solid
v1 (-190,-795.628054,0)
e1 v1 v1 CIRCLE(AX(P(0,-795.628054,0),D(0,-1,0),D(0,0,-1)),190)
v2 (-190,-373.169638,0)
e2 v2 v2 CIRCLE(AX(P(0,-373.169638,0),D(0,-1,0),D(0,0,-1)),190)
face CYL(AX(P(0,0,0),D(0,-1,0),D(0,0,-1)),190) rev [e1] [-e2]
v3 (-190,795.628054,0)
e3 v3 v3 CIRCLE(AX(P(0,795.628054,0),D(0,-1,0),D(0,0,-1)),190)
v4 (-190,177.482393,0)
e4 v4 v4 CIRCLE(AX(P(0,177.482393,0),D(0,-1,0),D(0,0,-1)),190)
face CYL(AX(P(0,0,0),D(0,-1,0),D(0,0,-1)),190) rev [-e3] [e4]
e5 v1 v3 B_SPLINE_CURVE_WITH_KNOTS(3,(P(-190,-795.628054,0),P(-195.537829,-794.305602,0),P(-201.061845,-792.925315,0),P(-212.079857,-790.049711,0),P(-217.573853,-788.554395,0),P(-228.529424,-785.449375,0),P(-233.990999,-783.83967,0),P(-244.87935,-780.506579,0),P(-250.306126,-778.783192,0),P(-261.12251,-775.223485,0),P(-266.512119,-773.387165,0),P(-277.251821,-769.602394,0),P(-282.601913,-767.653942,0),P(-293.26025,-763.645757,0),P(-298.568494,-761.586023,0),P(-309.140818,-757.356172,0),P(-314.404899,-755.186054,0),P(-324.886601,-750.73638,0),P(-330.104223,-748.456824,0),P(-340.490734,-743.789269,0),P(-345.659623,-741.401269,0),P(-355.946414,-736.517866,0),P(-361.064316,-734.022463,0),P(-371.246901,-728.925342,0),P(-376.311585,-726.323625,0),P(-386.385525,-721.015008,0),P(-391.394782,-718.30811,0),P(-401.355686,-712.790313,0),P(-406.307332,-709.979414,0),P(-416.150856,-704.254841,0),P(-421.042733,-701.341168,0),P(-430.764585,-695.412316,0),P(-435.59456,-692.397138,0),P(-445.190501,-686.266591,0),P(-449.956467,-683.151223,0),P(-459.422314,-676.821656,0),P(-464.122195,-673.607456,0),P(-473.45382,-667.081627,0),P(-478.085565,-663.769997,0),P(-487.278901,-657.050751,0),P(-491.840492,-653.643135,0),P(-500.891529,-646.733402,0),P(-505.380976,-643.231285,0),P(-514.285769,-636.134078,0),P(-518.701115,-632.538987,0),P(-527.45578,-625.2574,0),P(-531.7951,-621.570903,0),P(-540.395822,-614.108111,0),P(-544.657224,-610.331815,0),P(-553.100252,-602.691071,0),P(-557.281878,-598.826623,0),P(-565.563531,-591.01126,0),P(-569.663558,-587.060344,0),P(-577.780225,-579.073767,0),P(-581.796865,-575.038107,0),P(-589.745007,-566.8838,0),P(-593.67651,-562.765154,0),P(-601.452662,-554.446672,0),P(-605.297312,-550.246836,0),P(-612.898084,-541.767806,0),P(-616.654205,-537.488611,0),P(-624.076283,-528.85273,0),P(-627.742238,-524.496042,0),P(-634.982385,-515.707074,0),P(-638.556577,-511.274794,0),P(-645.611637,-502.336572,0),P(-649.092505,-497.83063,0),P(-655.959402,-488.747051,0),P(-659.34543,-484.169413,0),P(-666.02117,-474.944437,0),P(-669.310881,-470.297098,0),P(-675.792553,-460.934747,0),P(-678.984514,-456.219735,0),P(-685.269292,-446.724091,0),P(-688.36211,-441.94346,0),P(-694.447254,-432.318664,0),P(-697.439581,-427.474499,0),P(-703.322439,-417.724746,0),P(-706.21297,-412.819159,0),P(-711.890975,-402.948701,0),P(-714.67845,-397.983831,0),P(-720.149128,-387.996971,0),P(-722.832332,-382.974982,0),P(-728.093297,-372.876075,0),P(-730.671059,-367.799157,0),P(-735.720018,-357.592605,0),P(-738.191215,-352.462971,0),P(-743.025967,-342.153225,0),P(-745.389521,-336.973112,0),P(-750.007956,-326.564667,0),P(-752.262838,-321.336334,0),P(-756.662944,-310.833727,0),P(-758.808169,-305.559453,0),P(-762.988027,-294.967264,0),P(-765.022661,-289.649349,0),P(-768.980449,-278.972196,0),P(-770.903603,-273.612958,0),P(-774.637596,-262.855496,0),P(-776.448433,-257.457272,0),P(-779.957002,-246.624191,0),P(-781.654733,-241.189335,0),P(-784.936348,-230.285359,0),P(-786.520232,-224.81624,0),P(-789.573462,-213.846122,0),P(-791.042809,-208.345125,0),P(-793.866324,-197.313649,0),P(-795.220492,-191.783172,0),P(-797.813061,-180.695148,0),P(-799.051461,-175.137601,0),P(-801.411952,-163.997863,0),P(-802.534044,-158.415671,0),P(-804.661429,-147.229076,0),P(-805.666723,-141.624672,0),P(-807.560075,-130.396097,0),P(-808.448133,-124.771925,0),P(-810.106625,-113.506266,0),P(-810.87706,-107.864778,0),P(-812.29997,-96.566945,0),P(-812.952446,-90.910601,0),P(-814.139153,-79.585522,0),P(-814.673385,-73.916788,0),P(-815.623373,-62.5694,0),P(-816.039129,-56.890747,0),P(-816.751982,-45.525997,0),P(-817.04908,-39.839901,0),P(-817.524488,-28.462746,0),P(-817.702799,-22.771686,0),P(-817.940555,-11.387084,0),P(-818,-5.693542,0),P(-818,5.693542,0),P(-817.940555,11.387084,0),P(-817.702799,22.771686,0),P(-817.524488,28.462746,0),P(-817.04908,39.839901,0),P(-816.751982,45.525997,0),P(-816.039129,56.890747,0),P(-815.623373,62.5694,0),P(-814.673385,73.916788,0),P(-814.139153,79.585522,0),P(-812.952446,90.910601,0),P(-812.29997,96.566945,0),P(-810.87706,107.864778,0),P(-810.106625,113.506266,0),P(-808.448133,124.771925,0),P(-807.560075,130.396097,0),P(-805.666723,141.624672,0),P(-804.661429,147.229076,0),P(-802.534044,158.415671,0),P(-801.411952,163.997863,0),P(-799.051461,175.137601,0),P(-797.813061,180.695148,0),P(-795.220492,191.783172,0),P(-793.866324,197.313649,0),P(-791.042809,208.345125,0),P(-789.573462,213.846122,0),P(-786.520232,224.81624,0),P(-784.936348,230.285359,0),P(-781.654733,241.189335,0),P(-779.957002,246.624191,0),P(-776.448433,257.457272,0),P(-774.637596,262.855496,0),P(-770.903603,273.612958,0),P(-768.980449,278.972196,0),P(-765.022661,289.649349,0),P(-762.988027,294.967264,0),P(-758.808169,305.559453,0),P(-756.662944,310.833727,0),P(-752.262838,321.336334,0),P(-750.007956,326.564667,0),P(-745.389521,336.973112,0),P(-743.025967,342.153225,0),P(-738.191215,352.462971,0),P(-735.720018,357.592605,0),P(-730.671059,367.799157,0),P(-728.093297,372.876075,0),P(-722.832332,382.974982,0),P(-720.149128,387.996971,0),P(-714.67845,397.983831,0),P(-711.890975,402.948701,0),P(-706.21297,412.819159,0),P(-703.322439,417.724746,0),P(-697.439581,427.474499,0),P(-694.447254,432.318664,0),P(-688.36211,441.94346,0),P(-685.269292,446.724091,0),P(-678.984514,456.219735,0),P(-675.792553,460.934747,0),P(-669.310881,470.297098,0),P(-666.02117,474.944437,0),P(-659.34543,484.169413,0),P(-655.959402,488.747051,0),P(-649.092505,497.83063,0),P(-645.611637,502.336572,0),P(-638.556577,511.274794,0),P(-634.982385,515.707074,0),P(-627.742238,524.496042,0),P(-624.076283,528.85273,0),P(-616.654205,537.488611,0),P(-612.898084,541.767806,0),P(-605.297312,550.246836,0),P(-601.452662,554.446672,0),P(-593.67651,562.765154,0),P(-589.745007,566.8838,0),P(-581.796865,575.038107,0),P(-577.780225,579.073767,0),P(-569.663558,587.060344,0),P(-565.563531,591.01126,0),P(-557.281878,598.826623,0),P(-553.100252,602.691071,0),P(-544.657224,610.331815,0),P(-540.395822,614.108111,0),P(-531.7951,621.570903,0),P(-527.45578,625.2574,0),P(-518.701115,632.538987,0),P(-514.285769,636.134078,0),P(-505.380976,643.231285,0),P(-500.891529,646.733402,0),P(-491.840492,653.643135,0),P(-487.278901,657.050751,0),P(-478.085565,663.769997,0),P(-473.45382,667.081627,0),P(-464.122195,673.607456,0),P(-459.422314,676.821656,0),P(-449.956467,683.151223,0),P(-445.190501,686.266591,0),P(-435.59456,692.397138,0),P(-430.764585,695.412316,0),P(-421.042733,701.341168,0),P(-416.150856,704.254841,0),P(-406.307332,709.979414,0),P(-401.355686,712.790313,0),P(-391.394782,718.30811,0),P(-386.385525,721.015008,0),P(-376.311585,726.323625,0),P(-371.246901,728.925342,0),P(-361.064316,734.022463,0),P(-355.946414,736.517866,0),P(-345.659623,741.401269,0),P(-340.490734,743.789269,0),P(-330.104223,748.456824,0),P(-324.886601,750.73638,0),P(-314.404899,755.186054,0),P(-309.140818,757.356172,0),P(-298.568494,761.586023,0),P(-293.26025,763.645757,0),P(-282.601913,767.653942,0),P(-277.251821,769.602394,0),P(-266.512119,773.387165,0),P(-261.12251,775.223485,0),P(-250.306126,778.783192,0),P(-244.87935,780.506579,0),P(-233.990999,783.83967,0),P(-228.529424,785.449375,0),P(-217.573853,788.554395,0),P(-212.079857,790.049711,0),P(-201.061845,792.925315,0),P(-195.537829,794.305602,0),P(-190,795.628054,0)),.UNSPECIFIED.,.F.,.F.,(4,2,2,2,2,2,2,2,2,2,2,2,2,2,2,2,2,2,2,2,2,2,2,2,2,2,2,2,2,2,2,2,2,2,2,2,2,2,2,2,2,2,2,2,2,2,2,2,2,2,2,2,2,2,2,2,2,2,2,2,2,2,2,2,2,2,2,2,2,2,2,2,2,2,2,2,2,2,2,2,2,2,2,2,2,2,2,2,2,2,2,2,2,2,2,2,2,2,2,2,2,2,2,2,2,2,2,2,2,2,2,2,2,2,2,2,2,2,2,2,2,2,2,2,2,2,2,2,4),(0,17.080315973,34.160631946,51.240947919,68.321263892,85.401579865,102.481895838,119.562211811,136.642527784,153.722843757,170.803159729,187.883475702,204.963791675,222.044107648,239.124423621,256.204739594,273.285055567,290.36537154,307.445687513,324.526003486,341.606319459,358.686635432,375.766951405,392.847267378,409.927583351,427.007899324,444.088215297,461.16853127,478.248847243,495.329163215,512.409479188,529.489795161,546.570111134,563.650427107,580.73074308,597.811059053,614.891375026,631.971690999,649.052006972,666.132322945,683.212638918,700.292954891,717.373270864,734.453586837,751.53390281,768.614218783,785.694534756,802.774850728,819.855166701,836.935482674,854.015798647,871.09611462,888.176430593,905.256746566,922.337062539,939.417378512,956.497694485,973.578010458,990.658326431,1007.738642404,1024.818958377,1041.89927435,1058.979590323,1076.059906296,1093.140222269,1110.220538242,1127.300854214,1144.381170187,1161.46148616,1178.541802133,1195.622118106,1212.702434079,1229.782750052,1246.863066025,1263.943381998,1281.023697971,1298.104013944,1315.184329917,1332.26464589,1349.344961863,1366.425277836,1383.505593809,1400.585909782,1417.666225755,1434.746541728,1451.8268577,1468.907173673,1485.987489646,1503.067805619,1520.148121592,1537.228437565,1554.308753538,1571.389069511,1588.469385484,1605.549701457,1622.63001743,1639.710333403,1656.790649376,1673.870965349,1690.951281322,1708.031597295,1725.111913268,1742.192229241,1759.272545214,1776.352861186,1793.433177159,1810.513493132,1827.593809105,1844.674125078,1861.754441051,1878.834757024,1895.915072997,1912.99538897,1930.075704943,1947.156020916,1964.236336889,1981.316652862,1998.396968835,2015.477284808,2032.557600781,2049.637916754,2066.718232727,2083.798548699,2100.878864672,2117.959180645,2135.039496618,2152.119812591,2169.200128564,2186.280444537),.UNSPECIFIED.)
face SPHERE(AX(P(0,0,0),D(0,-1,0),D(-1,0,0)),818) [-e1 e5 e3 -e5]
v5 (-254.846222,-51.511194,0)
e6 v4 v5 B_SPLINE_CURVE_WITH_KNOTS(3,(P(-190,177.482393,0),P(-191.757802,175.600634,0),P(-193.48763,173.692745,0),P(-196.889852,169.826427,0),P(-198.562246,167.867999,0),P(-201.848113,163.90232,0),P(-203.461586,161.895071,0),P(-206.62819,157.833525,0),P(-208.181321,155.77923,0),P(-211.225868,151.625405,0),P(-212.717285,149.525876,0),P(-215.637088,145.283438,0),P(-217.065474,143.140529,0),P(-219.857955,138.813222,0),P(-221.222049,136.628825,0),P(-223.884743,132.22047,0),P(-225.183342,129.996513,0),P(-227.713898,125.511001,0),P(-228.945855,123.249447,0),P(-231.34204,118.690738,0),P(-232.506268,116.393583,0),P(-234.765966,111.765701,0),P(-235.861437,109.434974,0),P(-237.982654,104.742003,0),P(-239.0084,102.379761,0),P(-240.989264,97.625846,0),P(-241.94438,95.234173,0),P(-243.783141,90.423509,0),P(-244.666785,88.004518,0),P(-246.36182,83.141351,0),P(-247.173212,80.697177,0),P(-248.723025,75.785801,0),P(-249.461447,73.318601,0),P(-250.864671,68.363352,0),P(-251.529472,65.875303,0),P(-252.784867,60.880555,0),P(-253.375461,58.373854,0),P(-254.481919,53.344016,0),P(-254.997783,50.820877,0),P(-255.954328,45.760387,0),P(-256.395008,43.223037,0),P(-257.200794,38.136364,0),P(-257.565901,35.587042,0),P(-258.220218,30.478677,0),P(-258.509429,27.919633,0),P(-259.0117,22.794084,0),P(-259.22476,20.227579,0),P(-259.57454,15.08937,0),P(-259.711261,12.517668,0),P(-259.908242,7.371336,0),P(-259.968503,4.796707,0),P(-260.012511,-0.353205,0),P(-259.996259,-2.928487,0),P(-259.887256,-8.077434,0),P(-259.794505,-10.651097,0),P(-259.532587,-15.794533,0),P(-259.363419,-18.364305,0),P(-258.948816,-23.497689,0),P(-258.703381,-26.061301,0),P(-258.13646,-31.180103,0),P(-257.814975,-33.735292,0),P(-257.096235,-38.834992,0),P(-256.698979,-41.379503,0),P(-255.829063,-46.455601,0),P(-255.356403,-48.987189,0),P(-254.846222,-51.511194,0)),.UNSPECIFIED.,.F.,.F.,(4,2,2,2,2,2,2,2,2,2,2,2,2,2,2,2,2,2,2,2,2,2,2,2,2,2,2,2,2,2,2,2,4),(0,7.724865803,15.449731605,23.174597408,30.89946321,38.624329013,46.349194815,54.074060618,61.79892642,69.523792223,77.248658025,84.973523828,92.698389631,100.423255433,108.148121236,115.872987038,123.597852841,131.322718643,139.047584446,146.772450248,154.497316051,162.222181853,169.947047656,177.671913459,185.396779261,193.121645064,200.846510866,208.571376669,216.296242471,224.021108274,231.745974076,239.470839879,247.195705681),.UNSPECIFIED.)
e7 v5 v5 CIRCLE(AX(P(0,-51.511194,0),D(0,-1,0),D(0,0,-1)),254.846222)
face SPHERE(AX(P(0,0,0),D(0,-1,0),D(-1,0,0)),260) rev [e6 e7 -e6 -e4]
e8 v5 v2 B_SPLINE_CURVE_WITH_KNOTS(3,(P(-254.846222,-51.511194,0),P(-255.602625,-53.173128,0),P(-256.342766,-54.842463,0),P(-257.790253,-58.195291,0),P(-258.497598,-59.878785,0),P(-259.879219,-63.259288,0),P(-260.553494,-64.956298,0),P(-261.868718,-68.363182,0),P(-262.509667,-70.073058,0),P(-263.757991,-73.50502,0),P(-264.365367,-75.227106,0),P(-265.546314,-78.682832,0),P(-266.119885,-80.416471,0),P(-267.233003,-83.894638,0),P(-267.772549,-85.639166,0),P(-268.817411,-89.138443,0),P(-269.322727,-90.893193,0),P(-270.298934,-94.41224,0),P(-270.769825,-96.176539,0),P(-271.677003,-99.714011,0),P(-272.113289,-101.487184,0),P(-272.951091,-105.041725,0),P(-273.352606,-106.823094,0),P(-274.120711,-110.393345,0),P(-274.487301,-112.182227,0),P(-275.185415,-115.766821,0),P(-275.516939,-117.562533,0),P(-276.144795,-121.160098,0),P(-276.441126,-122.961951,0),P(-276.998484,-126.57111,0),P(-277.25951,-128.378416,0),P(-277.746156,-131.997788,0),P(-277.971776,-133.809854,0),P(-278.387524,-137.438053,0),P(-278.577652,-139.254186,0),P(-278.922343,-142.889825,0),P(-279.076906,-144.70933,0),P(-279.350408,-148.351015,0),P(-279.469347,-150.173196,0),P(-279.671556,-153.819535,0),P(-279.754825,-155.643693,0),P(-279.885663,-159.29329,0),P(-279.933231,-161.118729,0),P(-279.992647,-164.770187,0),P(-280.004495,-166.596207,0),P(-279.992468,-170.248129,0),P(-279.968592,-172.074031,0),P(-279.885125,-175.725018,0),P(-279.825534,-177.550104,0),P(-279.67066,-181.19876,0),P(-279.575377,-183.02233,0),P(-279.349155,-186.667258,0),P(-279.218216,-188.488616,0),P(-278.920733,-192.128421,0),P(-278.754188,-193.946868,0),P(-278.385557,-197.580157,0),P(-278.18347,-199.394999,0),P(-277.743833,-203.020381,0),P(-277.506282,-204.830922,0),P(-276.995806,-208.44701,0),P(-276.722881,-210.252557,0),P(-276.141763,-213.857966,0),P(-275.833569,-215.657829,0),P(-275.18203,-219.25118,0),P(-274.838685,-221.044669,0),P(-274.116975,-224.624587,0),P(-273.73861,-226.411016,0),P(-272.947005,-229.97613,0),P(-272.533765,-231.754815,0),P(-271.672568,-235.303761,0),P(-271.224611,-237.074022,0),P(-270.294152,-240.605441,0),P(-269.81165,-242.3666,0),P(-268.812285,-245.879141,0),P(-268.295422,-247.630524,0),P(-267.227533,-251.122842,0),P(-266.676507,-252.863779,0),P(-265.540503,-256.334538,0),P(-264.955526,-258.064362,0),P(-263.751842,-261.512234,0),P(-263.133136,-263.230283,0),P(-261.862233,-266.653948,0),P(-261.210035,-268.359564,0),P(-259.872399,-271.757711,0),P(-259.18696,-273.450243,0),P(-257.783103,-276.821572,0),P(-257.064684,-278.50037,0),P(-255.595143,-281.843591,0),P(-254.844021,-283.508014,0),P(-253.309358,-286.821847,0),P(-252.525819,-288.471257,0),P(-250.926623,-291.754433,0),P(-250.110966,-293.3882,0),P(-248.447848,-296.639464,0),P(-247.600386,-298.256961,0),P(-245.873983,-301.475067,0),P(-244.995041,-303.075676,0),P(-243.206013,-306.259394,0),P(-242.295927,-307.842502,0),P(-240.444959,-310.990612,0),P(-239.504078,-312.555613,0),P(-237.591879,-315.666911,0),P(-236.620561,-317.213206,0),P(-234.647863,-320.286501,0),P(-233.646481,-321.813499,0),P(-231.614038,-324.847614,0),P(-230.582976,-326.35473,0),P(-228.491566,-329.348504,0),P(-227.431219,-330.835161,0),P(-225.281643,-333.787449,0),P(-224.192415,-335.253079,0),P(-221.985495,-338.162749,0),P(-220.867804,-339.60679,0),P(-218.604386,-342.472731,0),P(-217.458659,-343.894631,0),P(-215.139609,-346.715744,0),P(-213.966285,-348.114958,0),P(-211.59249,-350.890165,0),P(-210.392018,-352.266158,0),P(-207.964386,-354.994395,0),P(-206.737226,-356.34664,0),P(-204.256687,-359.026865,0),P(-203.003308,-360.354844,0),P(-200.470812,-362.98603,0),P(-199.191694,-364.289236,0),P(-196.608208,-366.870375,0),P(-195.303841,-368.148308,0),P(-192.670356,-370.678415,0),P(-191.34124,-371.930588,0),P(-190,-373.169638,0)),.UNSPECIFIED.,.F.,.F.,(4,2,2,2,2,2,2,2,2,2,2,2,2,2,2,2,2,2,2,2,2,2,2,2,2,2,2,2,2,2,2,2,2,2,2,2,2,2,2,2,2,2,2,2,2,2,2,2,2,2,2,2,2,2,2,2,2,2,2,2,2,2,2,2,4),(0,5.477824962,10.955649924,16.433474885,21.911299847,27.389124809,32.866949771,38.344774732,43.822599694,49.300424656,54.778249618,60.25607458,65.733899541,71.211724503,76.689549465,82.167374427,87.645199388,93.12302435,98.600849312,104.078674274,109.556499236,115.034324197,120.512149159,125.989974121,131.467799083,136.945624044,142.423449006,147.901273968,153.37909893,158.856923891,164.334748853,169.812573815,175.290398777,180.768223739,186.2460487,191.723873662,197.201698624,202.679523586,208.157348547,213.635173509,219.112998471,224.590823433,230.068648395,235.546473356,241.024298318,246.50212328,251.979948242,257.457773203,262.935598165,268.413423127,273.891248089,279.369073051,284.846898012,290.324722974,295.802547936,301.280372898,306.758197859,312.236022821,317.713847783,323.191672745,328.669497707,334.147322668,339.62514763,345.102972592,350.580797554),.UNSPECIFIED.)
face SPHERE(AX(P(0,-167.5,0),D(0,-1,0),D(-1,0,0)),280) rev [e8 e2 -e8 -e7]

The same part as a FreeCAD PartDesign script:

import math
import FreeCAD as App
import Part
import Sketcher
from FreeCAD import Vector
Q = App.Units.Quantity

doc = App.newDocument("Part")
params = doc.addObject("Spreadsheet::Sheet", "Params")
for row, (alias, value) in enumerate([
    ("sketch1_radius", "818 mm"),
    ("sketch1_radius2", "280 mm"),
    ("sketch1_radius3", "260 mm"),
    ("revolution_angle", "360 deg"),
], start=1):
    params.set(f"A{row}", alias)
    params.set(f"B{row}", "=" + value)
    params.setAlias(f"B{row}", alias)

body = doc.addObject("PartDesign::Body", "Body")

# Sketch on XY plane
sketch1 = body.newObject("Sketcher::SketchObject", "Sketch")
sketch1.AttachmentSupport = (doc.getObject("XY_Plane"), [""])
sketch1.MapMode = "FlatFace"
sketch1.addGeometry(Part.LineSegment(Vector(-190, 177, 0), Vector(-190, 796, 0)), False)
sketch1.addGeometry(Part.ArcOfCircle(Part.Circle(Vector(0, 0, 0), Vector(0, 0, 1), 818), math.radians(103), math.radians(257)), False)
sketch1.addGeometry(Part.LineSegment(Vector(-190, -796, 0), Vector(-190, -373, 0)), False)
sketch1.addGeometry(Part.ArcOfCircle(Part.Circle(Vector(0, -168, 0), Vector(0, 0, 1), 280), math.radians(156), math.radians(227)), False)
sketch1.addGeometry(Part.ArcOfCircle(Part.Circle(Vector(0, 0, 0), Vector(0, 0, 1), 260), math.radians(137), math.radians(191)), False)
sketch1.addConstraint(Sketcher.Constraint("Coincident", 0, 2, 1, 1))
sketch1.addConstraint(Sketcher.Constraint("Coincident", 1, 2, 2, 1))
sketch1.addConstraint(Sketcher.Constraint("Coincident", 2, 2, 3, 2))
sketch1.addConstraint(Sketcher.Constraint("Coincident", 3, 1, 4, 2))
sketch1.addConstraint(Sketcher.Constraint("Coincident", 4, 1, 0, 1))
sketch1.addConstraint(Sketcher.Constraint("Vertical", 0))
sketch1.addConstraint(Sketcher.Constraint("Vertical", 2))
sketch1.addConstraint(Sketcher.Constraint("Coincident", 1, 3, -1, 1))
sketch1.addConstraint(Sketcher.Constraint("Coincident", 4, 3, -1, 1))
sketch1.addConstraint(Sketcher.Constraint("PointOnObject", 3, 3, -2))
sketch1.addConstraint(Sketcher.Constraint("Vertical", 2, 2, 4, 1))
sketch1.addConstraint(Sketcher.Constraint("Radius", 1, Q("818 mm")))
sketch1.addConstraint(Sketcher.Constraint("Radius", 3, Q("280 mm")))
sketch1.addConstraint(Sketcher.Constraint("Radius", 4, Q("260 mm")))
sketch1.addConstraint(Sketcher.Constraint("DistanceX", 0, 2, -1, 1, Q("190 mm")))
sketch1.addConstraint(Sketcher.Constraint("DistanceY", 3, 3, -1, 1, Q("167.5 mm")))
sketch1.setExpression("Constraints[11]", "Params.sketch1_radius")
sketch1.setExpression("Constraints[12]", "Params.sketch1_radius2")
sketch1.setExpression("Constraints[13]", "Params.sketch1_radius3")
revolution = body.newObject("PartDesign::Revolution", "Revolution")
revolution.Profile = sketch1
revolution.ReferenceAxis = (sketch1, ["V_Axis"])
revolution.setExpression("Angle", "Params.revolution_angle")

doc.recompute()
